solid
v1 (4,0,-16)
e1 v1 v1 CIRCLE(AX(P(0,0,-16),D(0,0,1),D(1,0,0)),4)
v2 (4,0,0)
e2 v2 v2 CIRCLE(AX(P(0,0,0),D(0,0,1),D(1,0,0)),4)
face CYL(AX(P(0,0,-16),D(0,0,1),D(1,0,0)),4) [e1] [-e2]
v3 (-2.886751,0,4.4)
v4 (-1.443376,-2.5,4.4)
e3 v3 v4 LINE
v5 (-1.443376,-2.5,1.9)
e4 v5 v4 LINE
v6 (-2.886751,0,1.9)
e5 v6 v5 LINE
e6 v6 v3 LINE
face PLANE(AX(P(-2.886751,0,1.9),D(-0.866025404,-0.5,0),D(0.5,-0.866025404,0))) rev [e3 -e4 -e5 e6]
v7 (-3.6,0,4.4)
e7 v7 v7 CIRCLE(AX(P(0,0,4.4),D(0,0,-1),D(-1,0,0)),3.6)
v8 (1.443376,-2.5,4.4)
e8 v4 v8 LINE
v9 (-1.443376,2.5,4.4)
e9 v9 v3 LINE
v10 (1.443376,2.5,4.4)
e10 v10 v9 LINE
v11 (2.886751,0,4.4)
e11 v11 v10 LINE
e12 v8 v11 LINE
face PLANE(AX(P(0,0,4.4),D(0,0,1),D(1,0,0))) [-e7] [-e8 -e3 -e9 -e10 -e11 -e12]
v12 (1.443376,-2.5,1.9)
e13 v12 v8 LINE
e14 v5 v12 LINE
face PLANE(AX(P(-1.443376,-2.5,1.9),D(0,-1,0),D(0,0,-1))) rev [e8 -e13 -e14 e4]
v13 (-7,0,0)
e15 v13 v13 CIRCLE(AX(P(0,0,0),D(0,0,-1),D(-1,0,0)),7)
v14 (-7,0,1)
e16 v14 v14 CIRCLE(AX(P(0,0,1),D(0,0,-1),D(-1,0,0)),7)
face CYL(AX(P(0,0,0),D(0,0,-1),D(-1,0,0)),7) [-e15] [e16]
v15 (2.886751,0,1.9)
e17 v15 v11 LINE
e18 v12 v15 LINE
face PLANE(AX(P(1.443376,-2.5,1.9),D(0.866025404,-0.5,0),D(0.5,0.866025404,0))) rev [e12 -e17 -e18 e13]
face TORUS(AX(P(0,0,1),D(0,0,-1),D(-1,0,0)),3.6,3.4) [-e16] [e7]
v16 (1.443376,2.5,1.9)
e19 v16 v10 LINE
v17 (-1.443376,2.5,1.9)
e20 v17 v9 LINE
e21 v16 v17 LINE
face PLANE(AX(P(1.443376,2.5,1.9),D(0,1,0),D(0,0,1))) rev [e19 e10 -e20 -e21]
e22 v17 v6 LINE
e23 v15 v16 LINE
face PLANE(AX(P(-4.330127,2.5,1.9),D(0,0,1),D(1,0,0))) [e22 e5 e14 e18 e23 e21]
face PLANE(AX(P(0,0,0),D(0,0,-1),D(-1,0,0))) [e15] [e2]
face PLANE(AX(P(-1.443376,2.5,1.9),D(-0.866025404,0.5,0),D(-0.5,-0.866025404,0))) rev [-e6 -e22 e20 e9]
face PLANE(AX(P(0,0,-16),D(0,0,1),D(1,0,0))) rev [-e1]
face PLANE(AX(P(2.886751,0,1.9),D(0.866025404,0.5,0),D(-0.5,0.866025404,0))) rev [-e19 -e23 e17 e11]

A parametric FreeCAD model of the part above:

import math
import FreeCAD as App
import Part
import Sketcher
Q = App.Units.Quantity


def add_polygon(sketch, points):
    """Adds a closed chain of lines whose ends are joined by coincident constraints."""
    first, n = sketch.GeometryCount, len(points)
    for a, b in zip(points, points[1:] + points[:1]):
        sketch.addGeometry(Part.LineSegment(App.Vector(*a, 0), App.Vector(*b, 0)), False)
    for i in range(n):
        sketch.addConstraint(Sketcher.Constraint("Coincident", first + i, 2, first + (i + 1) % n, 1))

doc = App.newDocument("Part")
body = doc.addObject("PartDesign::Body", "Body")

# Sketch on XY plane
sketch1 = body.newObject("Sketcher::SketchObject", "Sketch")
sketch1.AttachmentSupport = (doc.getObject("XY_Plane"), [""])
sketch1.MapMode = "FlatFace"
sketch1.addGeometry(Part.Circle(App.Vector(0, 0, 0), App.Vector(0, 0, 1), 4), False)
sketch1.addConstraint(Sketcher.Constraint("Coincident", 0, 3, -1, 1))
sketch1.addConstraint(Sketcher.Constraint("Diameter", 0, 8.0))
pad1 = body.newObject("PartDesign::Pad", "Pad")
pad1.Profile = sketch1
pad1.Length = 16
pad1.Reversed = True

# Sketch on YZ plane
sketch2 = body.newObject("Sketcher::SketchObject", "Sketch001")
sketch2.AttachmentSupport = (doc.getObject("YZ_Plane"), [""])
sketch2.MapMode = "FlatFace"
sketch2.addGeometry(Part.LineSegment(App.Vector(0, 0, 0), App.Vector(7, 0, 0)), False)
sketch2.addGeometry(Part.LineSegment(App.Vector(7, 0, 0), App.Vector(7, 1, 0)), False)
sketch2.addGeometry(Part.ArcOfCircle(Part.Circle(App.Vector(3.6, 1, 0), App.Vector(0, 0, 1), 3.4), math.radians(0), math.radians(90)), False)
sketch2.addGeometry(Part.LineSegment(App.Vector(3.6, 4.4, 0), App.Vector(0, 4.4, 0)), False)
sketch2.addGeometry(Part.LineSegment(App.Vector(0, 4.4, 0), App.Vector(0, 0, 0)), False)
sketch2.addConstraint(Sketcher.Constraint("Coincident", 0, 2, 1, 1))
sketch2.addConstraint(Sketcher.Constraint("Tangent", 1, 2, 2, 1))
sketch2.addConstraint(Sketcher.Constraint("Tangent", 2, 2, 3, 1))
sketch2.addConstraint(Sketcher.Constraint("Coincident", 3, 2, 4, 1))
sketch2.addConstraint(Sketcher.Constraint("Coincident", 4, 2, 0, 1))
sketch2.addConstraint(Sketcher.Constraint("Horizontal", 0))
sketch2.addConstraint(Sketcher.Constraint("Vertical", 1))
sketch2.addConstraint(Sketcher.Constraint("Horizontal", 3))
sketch2.addConstraint(Sketcher.Constraint("Vertical", 4))
sketch2.addConstraint(Sketcher.Constraint("Coincident", 4, 2, -1, 1))
sketch2.addConstraint(Sketcher.Constraint("Radius", 2, 3.4))
sketch2.addConstraint(Sketcher.Constraint("DistanceX", 0, 1, 0, 2, 7.0))
sketch2.addConstraint(Sketcher.Constraint("DistanceY", 1, 1, 1, 2, 1.0))
revolution = body.newObject("PartDesign::Revolution", "Revolution")
revolution.Profile = sketch2
revolution.ReferenceAxis = (sketch2, ["V_Axis"])
revolution.Angle = 360

# Sketch on XY plane
sketch3 = body.newObject("Sketcher::SketchObject", "Sketch002")
sketch3.AttachmentSupport = (doc.getObject("XY_Plane"), [""])
sketch3.MapMode = "FlatFace"
sketch3.AttachmentOffset = App.Placement(App.Vector(0, 0, 4.4), App.Rotation())
add_polygon(sketch3, [(-1.4, 2.5), (-2.9, 0), (-1.4, -2.5), (1.4, -2.5), (2.9, 0), (1.4, 2.5)])  # lines 0-5
sketch3.addConstraint(Sketcher.Constraint("Horizontal", 2))
sketch3.addConstraint(Sketcher.Constraint("Horizontal", 5))
sketch3.addConstraint(Sketcher.Constraint("Symmetric", 0, 2, 3, 2, -1, 1))
sketch3.addConstraint(Sketcher.Constraint("Symmetric", 1, 2, 4, 2, -1, 1))
sketch3.addConstraint(Sketcher.Constraint("PointOnObject", 0, 2, -1))
sketch3.addConstraint(Sketcher.Constraint("Parallel", 0, 3))
sketch3.addConstraint(Sketcher.Constraint("Vertical", 2, 2, 4, 2))
sketch3.addConstraint(Sketcher.Constraint("Angle", 0, Q("-120 deg")))
sketch3.addConstraint(Sketcher.Constraint("DistanceY", 2, 2, 4, 2, 5.0))
sketch3.addConstraint(Sketcher.Constraint("DistanceX", 2, 1, 2, 2, 2.886751))
pocket1 = body.newObject("PartDesign::Pocket", "Pocket")
pocket1.Profile = sketch3
pocket1.Length = 2.5

doc.recompute()
